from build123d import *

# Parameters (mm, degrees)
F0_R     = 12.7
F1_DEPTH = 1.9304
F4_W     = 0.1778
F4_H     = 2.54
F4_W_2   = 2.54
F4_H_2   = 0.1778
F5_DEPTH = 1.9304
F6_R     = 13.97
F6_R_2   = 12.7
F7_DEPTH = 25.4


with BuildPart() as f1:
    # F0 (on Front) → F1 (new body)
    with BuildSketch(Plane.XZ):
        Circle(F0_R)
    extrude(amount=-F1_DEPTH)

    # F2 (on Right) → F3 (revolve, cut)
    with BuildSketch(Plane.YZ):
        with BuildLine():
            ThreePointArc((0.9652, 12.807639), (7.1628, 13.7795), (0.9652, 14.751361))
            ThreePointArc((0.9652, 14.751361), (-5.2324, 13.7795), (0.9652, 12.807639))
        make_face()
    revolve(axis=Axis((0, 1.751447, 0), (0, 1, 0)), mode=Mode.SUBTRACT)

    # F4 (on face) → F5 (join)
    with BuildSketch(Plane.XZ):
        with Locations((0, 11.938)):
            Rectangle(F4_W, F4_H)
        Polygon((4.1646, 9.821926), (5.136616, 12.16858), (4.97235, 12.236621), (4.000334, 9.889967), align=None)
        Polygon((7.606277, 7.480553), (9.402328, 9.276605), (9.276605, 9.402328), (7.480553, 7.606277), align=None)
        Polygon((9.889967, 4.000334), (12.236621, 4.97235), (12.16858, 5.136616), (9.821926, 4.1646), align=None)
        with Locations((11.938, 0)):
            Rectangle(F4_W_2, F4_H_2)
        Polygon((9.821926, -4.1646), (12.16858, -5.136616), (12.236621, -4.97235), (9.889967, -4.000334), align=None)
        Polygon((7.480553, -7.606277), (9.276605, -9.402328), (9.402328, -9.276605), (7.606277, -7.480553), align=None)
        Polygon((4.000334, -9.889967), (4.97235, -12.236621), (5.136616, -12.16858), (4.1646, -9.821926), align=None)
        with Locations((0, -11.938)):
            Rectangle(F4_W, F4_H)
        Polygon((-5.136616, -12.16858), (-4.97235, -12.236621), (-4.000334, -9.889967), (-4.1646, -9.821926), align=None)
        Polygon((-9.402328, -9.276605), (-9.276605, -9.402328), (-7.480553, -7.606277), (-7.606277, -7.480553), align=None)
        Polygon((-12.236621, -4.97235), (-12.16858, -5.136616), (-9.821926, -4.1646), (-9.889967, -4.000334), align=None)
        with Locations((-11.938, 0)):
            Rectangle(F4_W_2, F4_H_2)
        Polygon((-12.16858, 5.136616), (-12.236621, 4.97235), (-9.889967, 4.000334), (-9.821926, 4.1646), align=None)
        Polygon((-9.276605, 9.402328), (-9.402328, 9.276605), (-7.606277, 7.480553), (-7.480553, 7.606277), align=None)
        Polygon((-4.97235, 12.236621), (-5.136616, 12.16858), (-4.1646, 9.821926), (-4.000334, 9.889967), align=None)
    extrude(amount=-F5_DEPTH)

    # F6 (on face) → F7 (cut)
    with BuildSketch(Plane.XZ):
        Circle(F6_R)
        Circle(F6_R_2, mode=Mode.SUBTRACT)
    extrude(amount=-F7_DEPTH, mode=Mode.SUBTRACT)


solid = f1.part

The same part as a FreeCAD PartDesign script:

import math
import FreeCAD as App
import Part
import Sketcher

V = App.Vector
Q = App.Units.Quantity


def add_polygon(sketch, points):
    """Adds a closed chain of lines whose ends are joined by coincident constraints."""
    first, n = sketch.GeometryCount, len(points)
    for a, b in zip(points, points[1:] + points[:1]):
        sketch.addGeometry(Part.LineSegment(App.Vector(*a, 0), App.Vector(*b, 0)), False)
    for i in range(n):
        sketch.addConstraint(Sketcher.Constraint("Coincident", first + i, 2, first + (i + 1) % n, 1))

doc = App.newDocument("Part")
params = doc.addObject("Spreadsheet::Sheet", "Params")
for row, (alias, value) in enumerate([
    ("sketch1_diameter", "1 in"),
    ("pad1_length", "0.076 in"),
    ("sketch2_radius", "0.125 in"),
    ("groove_angle", "360 deg"),
    ("sketch3_width", "0.1 in"),
    ("sketch3_length", "0.1 in"),
    ("sketch3_width2", "0.007 in"),
    ("sketch3_length2", "0.007 in"),
    ("pad2_length", "0.076 in"),
    ("sketch4_diameter", "1 in"),
    ("sketch4_diameter2", "1.1 in"),
    ("pocket1_length", "1 in"),
], start=1):
    params.set(f"A{row}", alias)
    params.set(f"B{row}", "=" + value)
    params.setAlias(f"B{row}", alias)

body = doc.addObject("PartDesign::Body", "Body")

# Sketch on XZ plane
sketch1 = body.newObject("Sketcher::SketchObject", "Sketch")
sketch1.AttachmentSupport = (doc.getObject("XZ_Plane"), [""])
sketch1.MapMode = "FlatFace"
sketch1.addGeometry(Part.Circle(V(0, 0, 0), V(0, 0, 1), 13), False)
sketch1.addConstraint([
    Sketcher.Constraint("Coincident", 0, 3, -1, 1),
    Sketcher.Constraint("Diameter", 0, Q("1 in")),
])
sketch1.setExpression("Constraints[1]", "Params.sketch1_diameter")
pad1 = body.newObject("PartDesign::Pad", "Pad")
pad1.Profile = sketch1
pad1.setExpression("Length", "Params.pad1_length")
pad1.Reversed = True

# Sketch on YZ plane
sketch2 = body.newObject("Sketcher::SketchObject", "Sketch001")
sketch2.AttachmentSupport = (doc.getObject("YZ_Plane"), [""])
sketch2.MapMode = "FlatFace"
sketch2.addGeometry([
    Part.ArcOfCircle(Part.Circle(V(4, 13.8, 0), V(0, 0, 1), 3.2), math.radians(-162), math.radians(162)),
    Part.ArcOfCircle(Part.Circle(V(-2.1, 13.8, 0), V(0, 0, 1), 3.2), math.radians(18), math.radians(342)),
], False)
sketch2.addConstraint([
    Sketcher.Constraint("Coincident", 0, 1, 1, 2),
    Sketcher.Constraint("Coincident", 1, 1, 0, 2),
    Sketcher.Constraint("Equal", 0, 1),
    Sketcher.Constraint("Horizontal", 0, 3, 1, 3),
    Sketcher.Constraint("Radius", 0, Q("0.125 in")),
    Sketcher.Constraint("DistanceX", -1, 1, 0, 3, Q("0.157 in")),
    Sketcher.Constraint("DistanceX", 1, 3, -1, 1, Q("0.081 in")),
    Sketcher.Constraint("DistanceY", -1, 1, 0, 3, Q("0.5425 in")),
])
sketch2.setExpression("Constraints[4]", "Params.sketch2_radius")
groove = body.newObject("PartDesign::Groove", "Groove")
groove.Profile = sketch2
groove.ReferenceAxis = (sketch2, ["H_Axis"])
groove.setExpression("Angle", "Params.groove_angle")

# Sketch on XZ plane
sketch3 = body.newObject("Sketcher::SketchObject", "Sketch002")
sketch3.AttachmentSupport = (doc.getObject("XZ_Plane"), [""])
sketch3.MapMode = "FlatFace"
add_polygon(sketch3, [(-0.09, 13.21), (-0.09, 10.67), (0.09, 10.67), (0.09, 13.21)])  # lines 0-3
add_polygon(sketch3, [(4.16, 9.82), (5.14, 12.17), (4.97, 12.24), (4, 9.89)])  # lines 4-7
add_polygon(sketch3, [(7.61, 7.48), (9.4, 9.28), (9.28, 9.4), (7.48, 7.61)])  # lines 8-11
add_polygon(sketch3, [(9.89, 4), (12.24, 4.97), (12.17, 5.14), (9.82, 4.16)])  # lines 12-15
add_polygon(sketch3, [(10.67, 0.09), (10.67, -0.09), (13.21, -0.09), (13.21, 0.09)])  # lines 16-19
add_polygon(sketch3, [(9.82, -4.16), (12.17, -5.14), (12.24, -4.97), (9.89, -4)])  # lines 20-23
add_polygon(sketch3, [(7.48, -7.61), (9.28, -9.4), (9.4, -9.28), (7.61, -7.48)])  # lines 24-27
add_polygon(sketch3, [(4, -9.89), (4.97, -12.24), (5.14, -12.17), (4.16, -9.82)])  # lines 28-31
add_polygon(sketch3, [(-0.09, -10.67), (-0.09, -13.21), (0.09, -13.21), (0.09, -10.67)])  # lines 32-35
add_polygon(sketch3, [(-5.14, -12.17), (-4.97, -12.24), (-4, -9.89), (-4.16, -9.82)])  # lines 36-39
add_polygon(sketch3, [(-9.4, -9.28), (-9.28, -9.4), (-7.48, -7.61), (-7.61, -7.48)])  # lines 40-43
add_polygon(sketch3, [(-12.24, -4.97), (-12.17, -5.14), (-9.82, -4.16), (-9.89, -4)])  # lines 44-47
add_polygon(sketch3, [(-13.21, 0.09), (-13.21, -0.09), (-10.67, -0.09), (-10.67, 0.09)])  # lines 48-51
add_polygon(sketch3, [(-12.17, 5.14), (-12.24, 4.97), (-9.89, 4), (-9.82, 4.16)])  # lines 52-55
add_polygon(sketch3, [(-9.28, 9.4), (-9.4, 9.28), (-7.61, 7.48), (-7.48, 7.61)])  # lines 56-59
add_polygon(sketch3, [(-4.97, 12.24), (-5.14, 12.17), (-4.16, 9.82), (-4, 9.89)])  # lines 60-63
sketch3.addConstraint([
    Sketcher.Constraint("Vertical", 0),
    Sketcher.Constraint("Horizontal", 1),
    Sketcher.Constraint("Vertical", 2),
    Sketcher.Constraint("Horizontal", 3),
    Sketcher.Constraint("Vertical", 16),
    Sketcher.Constraint("Horizontal", 17),
    Sketcher.Constraint("Vertical", 18),
    Sketcher.Constraint("Horizontal", 19),
    Sketcher.Constraint("Vertical", 32),
    Sketcher.Constraint("Horizontal", 33),
    Sketcher.Constraint("Vertical", 34),
    Sketcher.Constraint("Horizontal", 35),
    Sketcher.Constraint("Vertical", 48),
    Sketcher.Constraint("Horizontal", 49),
    Sketcher.Constraint("Vertical", 50),
    Sketcher.Constraint("Horizontal", 51),
    Sketcher.Constraint("Symmetric", 2, 2, 32, 2, -1, 1),
    Sketcher.Constraint("Symmetric", 0, 2, 34, 2, -1, 1),
    Sketcher.Constraint("Symmetric", 5, 2, 36, 2, -1, 1),
    Sketcher.Constraint("Symmetric", 6, 2, 37, 2, -1, 1),
    Sketcher.Constraint("Symmetric", 7, 2, 38, 2, -1, 1),
    Sketcher.Constraint("Symmetric", 4, 2, 39, 2, -1, 1),
    Sketcher.Constraint("Symmetric", 9, 2, 40, 2, -1, 1),
    Sketcher.Constraint("Symmetric", 10, 2, 41, 2, -1, 1),
    Sketcher.Constraint("Symmetric", 11, 2, 42, 2, -1, 1),
    Sketcher.Constraint("Symmetric", 8, 2, 43, 2, -1, 1),
    Sketcher.Constraint("Symmetric", 13, 2, 44, 2, -1, 1),
    Sketcher.Constraint("Symmetric", 14, 2, 45, 2, -1, 1),
    Sketcher.Constraint("Symmetric", 15, 2, 46, 2, -1, 1),
    Sketcher.Constraint("Symmetric", 12, 2, 47, 2, -1, 1),
    Sketcher.Constraint("Symmetric", 18, 2, 48, 2, -1, 1),
    Sketcher.Constraint("Symmetric", 16, 2, 50, 2, -1, 1),
    Sketcher.Constraint("Symmetric", 21, 2, 52, 2, -1, 1),
    Sketcher.Constraint("Symmetric", 22, 2, 53, 2, -1, 1),
    Sketcher.Constraint("Symmetric", 23, 2, 54, 2, -1, 1),
    Sketcher.Constraint("Symmetric", 20, 2, 55, 2, -1, 1),
    Sketcher.Constraint("Symmetric", 25, 2, 56, 2, -1, 1),
    Sketcher.Constraint("Symmetric", 26, 2, 57, 2, -1, 1),
    Sketcher.Constraint("Symmetric", 27, 2, 58, 2, -1, 1),
    Sketcher.Constraint("Symmetric", 24, 2, 59, 2, -1, 1),
    Sketcher.Constraint("Symmetric", 29, 2, 60, 2, -1, 1),
    Sketcher.Constraint("Symmetric", 30, 2, 61, 2, -1, 1),
    Sketcher.Constraint("Symmetric", 31, 2, 62, 2, -1, 1),
    Sketcher.Constraint("Symmetric", 28, 2, 63, 2, -1, 1),
    Sketcher.Constraint("Symmetric", 28, 2, 36, 2, -2),
    Sketcher.Constraint("Symmetric", 31, 2, 37, 2, -2),
    Sketcher.Constraint("Symmetric", 30, 2, 38, 2, -2),
    Sketcher.Constraint("Symmetric", 29, 2, 39, 2, -2),
    Sketcher.Constraint("Symmetric", 24, 2, 40, 2, -2),
    Sketcher.Constraint("Symmetric", 27, 2, 41, 2, -2),
    Sketcher.Constraint("Symmetric", 26, 2, 42, 2, -2),
    Sketcher.Constraint("Symmetric", 25, 2, 43, 2, -2),
    Sketcher.Constraint("Symmetric", 20, 2, 44, 2, -2),
    Sketcher.Constraint("Symmetric", 23, 2, 45, 2, -2),
    Sketcher.Constraint("Symmetric", 22, 2, 46, 2, -2),
    Sketcher.Constraint("Symmetric", 21, 2, 47, 2, -2),
    Sketcher.Constraint("Perpendicular", 4, 5),
    Sketcher.Constraint("Perpendicular", 5, 6),
    Sketcher.Constraint("Perpendicular", 6, 7),
    Sketcher.Constraint("Perpendicular", 8, 9),
    Sketcher.Constraint("Perpendicular", 9, 10),
    Sketcher.Constraint("Perpendicular", 10, 11),
    Sketcher.Constraint("Perpendicular", 12, 13),
    Sketcher.Constraint("Perpendicular", 13, 14),
    Sketcher.Constraint("Perpendicular", 14, 15),
    Sketcher.Constraint("Parallel", 7, 20),
    Sketcher.Constraint("Parallel", 11, 24),
    Sketcher.Constraint("Horizontal", 17, 2, 48, 2),
    Sketcher.Constraint("Vertical", 3, 2, 32, 2),
    Sketcher.Constraint("Equal", 51, 0),
    Sketcher.Constraint("Equal", 35, 16),
    Sketcher.Constraint("Equal", 6, 8),
    Sketcher.Constraint("Equal", 7, 9),
    Sketcher.Constraint("Equal", 10, 12),
    Sketcher.Constraint("Equal", 11, 13),
    Sketcher.Constraint("DistanceX", 17, 1, 17, 2, Q("0.1 in")),
    Sketcher.Constraint("Distance", 4, Q("0.1 in")),
    Sketcher.Constraint("Angle", 4, Q("67.499998 deg")),
    Sketcher.Constraint("DistanceX", 1, 1, 1, 2, Q("0.007 in")),
    Sketcher.Constraint("DistanceY", -1, 1, 0, 2, Q("0.42 in")),
    Sketcher.Constraint("DistanceX", -1, 1, 16, 2, Q("0.42 in")),
    Sketcher.Constraint("Distance", 5, Q("0.007 in")),
    Sketcher.Constraint("DistanceX", -1, 1, 7, 2, Q("4.1646 mm")),
    Sketcher.Constraint("DistanceY", -1, 1, 14, 2, Q("4.1646 mm")),
    Sketcher.Constraint("DistanceY", -1, 1, 4, 2, Q("12.16858 mm")),
    Sketcher.Constraint("DistanceX", -1, 1, 8, 2, Q("9.402328 mm")),
    Sketcher.Constraint("DistanceY", -1, 1, 9, 2, Q("9.402328 mm")),
    Sketcher.Constraint("DistanceX", -1, 1, 12, 2, Q("12.236621 mm")),
])
sketch3.setExpression("Constraints[139]", "Params.sketch3_width")
sketch3.setExpression("Constraints[140]", "Params.sketch3_length")
sketch3.setExpression("Constraints[142]", "Params.sketch3_width2")
sketch3.setExpression("Constraints[145]", "Params.sketch3_length2")
pad2 = body.newObject("PartDesign::Pad", "Pad001")
pad2.Profile = sketch3
pad2.setExpression("Length", "Params.pad2_length")
pad2.Reversed = True

# Sketch on XZ plane
sketch4 = body.newObject("Sketcher::SketchObject", "Sketch003")
sketch4.AttachmentSupport = (doc.getObject("XZ_Plane"), [""])
sketch4.MapMode = "FlatFace"
sketch4.addGeometry([
    Part.Circle(V(0, 0, 0), V(0, 0, 1), 14),
    Part.Circle(V(0, 0, 0), V(0, 0, 1), 13),
], False)
sketch4.addConstraint([
    Sketcher.Constraint("Coincident", 0, 3, -1, 1),
    Sketcher.Constraint("Coincident", 1, 3, -1, 1),
    Sketcher.Constraint("Diameter", 1, Q("1 in")),
    Sketcher.Constraint("Diameter", 0, Q("1.1 in")),
])
sketch4.setExpression("Constraints[2]", "Params.sketch4_diameter")
sketch4.setExpression("Constraints[3]", "Params.sketch4_diameter2")
pocket1 = body.newObject("PartDesign::Pocket", "Pocket")
pocket1.Profile = sketch4
pocket1.setExpression("Length", "Params.pocket1_length")

doc.recompute()
